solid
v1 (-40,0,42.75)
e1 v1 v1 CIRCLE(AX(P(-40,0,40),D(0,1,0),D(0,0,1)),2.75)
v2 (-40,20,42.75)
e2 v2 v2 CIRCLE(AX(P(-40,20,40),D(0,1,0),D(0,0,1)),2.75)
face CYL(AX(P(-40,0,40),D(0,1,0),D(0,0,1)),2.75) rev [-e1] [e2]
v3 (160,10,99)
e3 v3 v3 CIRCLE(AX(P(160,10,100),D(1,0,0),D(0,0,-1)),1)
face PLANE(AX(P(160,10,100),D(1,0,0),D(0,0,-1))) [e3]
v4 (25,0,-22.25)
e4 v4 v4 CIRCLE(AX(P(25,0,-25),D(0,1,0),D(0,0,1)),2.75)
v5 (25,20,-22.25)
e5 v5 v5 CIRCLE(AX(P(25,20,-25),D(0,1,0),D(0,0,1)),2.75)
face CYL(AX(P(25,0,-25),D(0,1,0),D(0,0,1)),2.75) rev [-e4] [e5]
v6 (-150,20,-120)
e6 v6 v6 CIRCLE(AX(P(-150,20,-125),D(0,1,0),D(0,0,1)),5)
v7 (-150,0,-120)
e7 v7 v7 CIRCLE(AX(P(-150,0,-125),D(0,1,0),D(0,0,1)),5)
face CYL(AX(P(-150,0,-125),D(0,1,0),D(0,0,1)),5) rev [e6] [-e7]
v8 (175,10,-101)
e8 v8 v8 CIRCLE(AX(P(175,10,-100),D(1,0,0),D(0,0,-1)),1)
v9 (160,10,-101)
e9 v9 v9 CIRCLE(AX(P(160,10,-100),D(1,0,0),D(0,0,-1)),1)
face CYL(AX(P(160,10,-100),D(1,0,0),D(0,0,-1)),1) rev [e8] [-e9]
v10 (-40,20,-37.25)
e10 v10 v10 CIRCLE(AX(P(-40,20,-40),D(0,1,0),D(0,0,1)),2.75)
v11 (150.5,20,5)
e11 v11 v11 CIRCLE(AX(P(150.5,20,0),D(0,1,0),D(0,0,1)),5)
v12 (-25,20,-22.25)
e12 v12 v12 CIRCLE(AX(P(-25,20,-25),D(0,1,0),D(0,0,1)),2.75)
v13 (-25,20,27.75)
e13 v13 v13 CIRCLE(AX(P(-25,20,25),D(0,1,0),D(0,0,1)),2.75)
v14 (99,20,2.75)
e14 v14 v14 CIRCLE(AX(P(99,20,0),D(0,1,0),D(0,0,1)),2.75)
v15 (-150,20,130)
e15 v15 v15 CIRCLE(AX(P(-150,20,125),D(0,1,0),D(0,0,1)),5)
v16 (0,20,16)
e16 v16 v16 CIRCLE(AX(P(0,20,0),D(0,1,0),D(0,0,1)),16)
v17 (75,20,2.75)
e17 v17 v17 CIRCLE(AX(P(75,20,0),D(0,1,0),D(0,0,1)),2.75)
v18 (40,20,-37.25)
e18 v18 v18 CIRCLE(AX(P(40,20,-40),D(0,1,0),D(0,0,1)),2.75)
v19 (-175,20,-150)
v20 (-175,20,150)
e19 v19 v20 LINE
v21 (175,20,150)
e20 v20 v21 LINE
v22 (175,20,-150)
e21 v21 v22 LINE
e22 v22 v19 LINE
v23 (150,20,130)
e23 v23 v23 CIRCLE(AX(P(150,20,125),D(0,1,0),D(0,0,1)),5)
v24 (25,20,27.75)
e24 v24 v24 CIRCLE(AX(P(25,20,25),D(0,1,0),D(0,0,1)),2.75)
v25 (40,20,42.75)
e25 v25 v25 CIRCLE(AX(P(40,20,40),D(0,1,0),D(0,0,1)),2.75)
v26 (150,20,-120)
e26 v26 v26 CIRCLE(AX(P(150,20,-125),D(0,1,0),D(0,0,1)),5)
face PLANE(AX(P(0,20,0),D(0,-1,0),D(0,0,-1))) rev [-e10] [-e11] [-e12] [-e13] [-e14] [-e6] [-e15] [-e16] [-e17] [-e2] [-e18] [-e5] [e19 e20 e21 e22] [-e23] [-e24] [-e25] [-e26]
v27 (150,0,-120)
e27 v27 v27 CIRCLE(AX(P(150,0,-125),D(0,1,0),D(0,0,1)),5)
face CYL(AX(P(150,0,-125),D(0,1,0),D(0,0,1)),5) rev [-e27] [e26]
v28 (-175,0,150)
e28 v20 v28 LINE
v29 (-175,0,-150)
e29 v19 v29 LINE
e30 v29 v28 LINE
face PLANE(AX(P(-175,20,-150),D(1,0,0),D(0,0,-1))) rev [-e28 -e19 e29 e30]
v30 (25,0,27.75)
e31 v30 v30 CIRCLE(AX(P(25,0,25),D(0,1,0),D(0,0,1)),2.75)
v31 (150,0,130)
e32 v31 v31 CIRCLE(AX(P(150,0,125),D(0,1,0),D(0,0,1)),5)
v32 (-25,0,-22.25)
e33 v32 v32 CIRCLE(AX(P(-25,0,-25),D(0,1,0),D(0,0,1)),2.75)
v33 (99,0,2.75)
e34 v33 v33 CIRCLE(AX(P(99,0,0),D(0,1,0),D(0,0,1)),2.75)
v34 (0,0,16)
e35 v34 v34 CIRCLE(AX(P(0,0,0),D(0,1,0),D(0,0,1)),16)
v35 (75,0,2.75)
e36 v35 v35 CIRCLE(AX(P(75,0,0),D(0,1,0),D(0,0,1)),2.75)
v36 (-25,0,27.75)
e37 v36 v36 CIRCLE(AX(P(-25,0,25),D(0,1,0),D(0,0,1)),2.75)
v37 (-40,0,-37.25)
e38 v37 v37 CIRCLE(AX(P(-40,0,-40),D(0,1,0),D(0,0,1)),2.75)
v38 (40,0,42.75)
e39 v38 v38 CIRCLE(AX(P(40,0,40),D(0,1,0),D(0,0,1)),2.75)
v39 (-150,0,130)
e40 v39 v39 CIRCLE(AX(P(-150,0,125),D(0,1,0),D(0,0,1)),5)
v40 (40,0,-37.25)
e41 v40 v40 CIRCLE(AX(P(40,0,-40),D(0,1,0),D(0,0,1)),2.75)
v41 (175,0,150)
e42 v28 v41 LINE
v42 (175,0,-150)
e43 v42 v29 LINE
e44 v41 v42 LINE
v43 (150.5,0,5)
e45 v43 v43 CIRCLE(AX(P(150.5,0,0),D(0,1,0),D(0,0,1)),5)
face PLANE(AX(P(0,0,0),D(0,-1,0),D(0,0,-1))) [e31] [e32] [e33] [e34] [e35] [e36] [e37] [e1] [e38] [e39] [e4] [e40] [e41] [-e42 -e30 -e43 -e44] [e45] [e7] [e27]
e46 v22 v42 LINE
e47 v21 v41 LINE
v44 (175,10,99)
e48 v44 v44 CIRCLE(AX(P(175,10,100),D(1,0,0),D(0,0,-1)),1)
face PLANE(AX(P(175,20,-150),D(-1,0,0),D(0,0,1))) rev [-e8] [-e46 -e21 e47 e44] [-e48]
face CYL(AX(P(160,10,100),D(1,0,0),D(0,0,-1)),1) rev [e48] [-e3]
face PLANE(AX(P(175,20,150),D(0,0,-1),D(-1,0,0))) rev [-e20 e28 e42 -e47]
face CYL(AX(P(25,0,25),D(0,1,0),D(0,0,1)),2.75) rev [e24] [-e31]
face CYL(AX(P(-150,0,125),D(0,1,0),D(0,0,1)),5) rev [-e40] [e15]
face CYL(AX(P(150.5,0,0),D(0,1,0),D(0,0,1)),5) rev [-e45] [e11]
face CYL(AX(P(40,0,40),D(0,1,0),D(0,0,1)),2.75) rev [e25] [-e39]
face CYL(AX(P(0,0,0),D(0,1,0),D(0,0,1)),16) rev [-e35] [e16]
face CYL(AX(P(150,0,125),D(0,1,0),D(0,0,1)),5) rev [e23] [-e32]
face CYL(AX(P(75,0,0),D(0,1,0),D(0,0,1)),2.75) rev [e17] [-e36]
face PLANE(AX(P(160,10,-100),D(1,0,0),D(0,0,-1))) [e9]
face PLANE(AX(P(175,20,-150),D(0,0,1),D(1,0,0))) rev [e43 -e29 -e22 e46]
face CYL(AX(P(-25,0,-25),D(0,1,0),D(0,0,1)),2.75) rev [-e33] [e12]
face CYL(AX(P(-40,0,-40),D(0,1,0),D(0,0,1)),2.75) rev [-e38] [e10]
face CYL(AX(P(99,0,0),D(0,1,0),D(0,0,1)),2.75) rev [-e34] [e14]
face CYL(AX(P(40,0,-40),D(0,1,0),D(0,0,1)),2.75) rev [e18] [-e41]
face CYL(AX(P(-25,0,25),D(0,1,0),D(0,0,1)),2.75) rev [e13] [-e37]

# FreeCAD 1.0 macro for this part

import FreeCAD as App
import Part
import Sketcher

V = App.Vector


def add_polygon(sketch, points):
    """Adds a closed chain of lines whose ends are joined by coincident constraints."""
    first, n = sketch.GeometryCount, len(points)
    for a, b in zip(points, points[1:] + points[:1]):
        sketch.addGeometry(Part.LineSegment(App.Vector(*a, 0), App.Vector(*b, 0)), False)
    for i in range(n):
        sketch.addConstraint(Sketcher.Constraint("Coincident", first + i, 2, first + (i + 1) % n, 1))

doc = App.newDocument("Part")
body = doc.addObject("PartDesign::Body", "Body")

# Sketch on XZ plane
sketch1 = body.newObject("Sketcher::SketchObject", "Sketch")
sketch1.AttachmentSupport = (doc.getObject("XZ_Plane"), [""])
sketch1.MapMode = "FlatFace"
add_polygon(sketch1, [(-175, -150), (-175, 150), (175, 150), (175, -150)])  # lines 0-3
sketch1.addConstraint(Sketcher.Constraint("Vertical", 0))
sketch1.addConstraint(Sketcher.Constraint("Horizontal", 1))
sketch1.addConstraint(Sketcher.Constraint("Vertical", 2))
sketch1.addConstraint(Sketcher.Constraint("Horizontal", 3))
sketch1.addConstraint(Sketcher.Constraint("Symmetric", 0, 2, 2, 2, -1, 1))
sketch1.addConstraint(Sketcher.Constraint("DistanceX", 1, 1, 1, 2, 350.0))
sketch1.addConstraint(Sketcher.Constraint("DistanceY", 0, 1, 0, 2, 300.0))
pad1 = body.newObject("PartDesign::Pad", "Pad")
pad1.Profile = sketch1
pad1.Length = 20
pad1.Reversed = True

# Sketch on XZ plane
sketch2 = body.newObject("Sketcher::SketchObject", "Sketch001")
sketch2.AttachmentSupport = (doc.getObject("XZ_Plane"), [""])
sketch2.MapMode = "FlatFace"
sketch2.AttachmentOffset = App.Placement(V(0, 0, -20), App.Rotation())
sketch2.addGeometry(Part.Circle(V(-150, 125, 0), V(0, 0, 1), 5), False)
sketch2.addGeometry(Part.Circle(V(-150, -125, 0), V(0, 0, 1), 5), False)
sketch2.addGeometry(Part.Circle(V(150, -125, 0), V(0, 0, 1), 5), False)
sketch2.addGeometry(Part.Circle(V(150, 125, 0), V(0, 0, 1), 5), False)
sketch2.addConstraint(Sketcher.Constraint("Equal", 0, 1))
sketch2.addConstraint(Sketcher.Constraint("Equal", 1, 2))
sketch2.addConstraint(Sketcher.Constraint("Equal", 2, 3))
sketch2.addConstraint(Sketcher.Constraint("Symmetric", 0, 3, 2, 3, -1, 1))
sketch2.addConstraint(Sketcher.Constraint("Symmetric", 1, 3, 3, 3, -1, 1))
sketch2.addConstraint(Sketcher.Constraint("Symmetric", 1, 3, 2, 3, -2))
sketch2.addConstraint(Sketcher.Constraint("Diameter", 0, 10.0))
sketch2.addConstraint(Sketcher.Constraint("DistanceX", 0, 3, -1, 1, 150.0))
sketch2.addConstraint(Sketcher.Constraint("DistanceY", -1, 1, 0, 3, 125.0))
pocket1 = body.newObject("PartDesign::Pocket", "Pocket")
pocket1.Profile = sketch2
pocket1.Type = "ThroughAll"
pocket1.Reversed = True

# Sketch on XZ plane
sketch3 = body.newObject("Sketcher::SketchObject", "Sketch002")
sketch3.AttachmentSupport = (doc.getObject("XZ_Plane"), [""])
sketch3.MapMode = "FlatFace"
sketch3.AttachmentOffset = App.Placement(V(0, 0, -20), App.Rotation())
sketch3.addGeometry(Part.Circle(V(75, 0, 0), V(0, 0, 1), 2.8), False)
sketch3.addGeometry(Part.Circle(V(99, 0, 0), V(0, 0, 1), 2.8), False)
sketch3.addConstraint(Sketcher.Constraint("Equal", 0, 1))
sketch3.addConstraint(Sketcher.Constraint("PointOnObject", 0, 3, -1))
sketch3.addConstraint(Sketcher.Constraint("PointOnObject", 1, 3, -1))
sketch3.addConstraint(Sketcher.Constraint("Diameter", 0, 5.5))
sketch3.addConstraint(Sketcher.Constraint("DistanceX", -1, 1, 0, 3, 75.0))
sketch3.addConstraint(Sketcher.Constraint("DistanceX", -1, 1, 1, 3, 99.0))
pocket2 = body.newObject("PartDesign::Pocket", "Pocket001")
pocket2.Profile = sketch3
pocket2.Length = 20
pocket2.Reversed = True

# Sketch on XZ plane
sketch4 = body.newObject("Sketcher::SketchObject", "Sketch003")
sketch4.AttachmentSupport = (doc.getObject("XZ_Plane"), [""])
sketch4.MapMode = "FlatFace"
sketch4.AttachmentOffset = App.Placement(V(0, 0, -20), App.Rotation())
sketch4.addGeometry(Part.Circle(V(150, 0, 0), V(0, 0, 1), 5), False)
sketch4.addConstraint(Sketcher.Constraint("PointOnObject", 0, 3, -1))
sketch4.addConstraint(Sketcher.Constraint("Diameter", 0, 10.0))
sketch4.addConstraint(Sketcher.Constraint("DistanceX", -1, 1, 0, 3, 150.5))
pocket3 = body.newObject("PartDesign::Pocket", "Pocket002")
pocket3.Profile = sketch4
pocket3.Length = 20
pocket3.Reversed = True

# Sketch on XZ plane
sketch5 = body.newObject("Sketcher::SketchObject", "Sketch004")
sketch5.AttachmentSupport = (doc.getObject("XZ_Plane"), [""])
sketch5.MapMode = "FlatFace"
sketch5.AttachmentOffset = App.Placement(V(0, 0, -20), App.Rotation())
sketch5.addGeometry(Part.Circle(V(-40, -40, 0), V(0, 0, 1), 2.8), False)
sketch5.addGeometry(Part.Circle(V(40, -40, 0), V(0, 0, 1), 2.8), False)
sketch5.addGeometry(Part.Circle(V(40, 40, 0), V(0, 0, 1), 2.8), False)
sketch5.addGeometry(Part.Circle(V(-40, 40, 0), V(0, 0, 1), 2.8), False)
sketch5.addConstraint(Sketcher.Constraint("Equal", 0, 1))
sketch5.addConstraint(Sketcher.Constraint("Equal", 1, 2))
sketch5.addConstraint(Sketcher.Constraint("Equal", 2, 3))
sketch5.addConstraint(Sketcher.Constraint("Symmetric", 0, 3, 2, 3, -1, 1))
sketch5.addConstraint(Sketcher.Constraint("Symmetric", 1, 3, 3, 3, -1, 1))
sketch5.addConstraint(Sketcher.Constraint("Symmetric", 0, 3, 1, 3, -2))
sketch5.addConstraint(Sketcher.Constraint("Diameter", 0, 5.5))
sketch5.addConstraint(Sketcher.Constraint("DistanceX", 0, 3, -1, 1, 40.0))
sketch5.addConstraint(Sketcher.Constraint("DistanceY", 0, 3, -1, 1, 40.0))
pocket4 = body.newObject("PartDesign::Pocket", "Pocket003")
pocket4.Profile = sketch5
pocket4.Length = 20
pocket4.Reversed = True

# Sketch on XZ plane
sketch6 = body.newObject("Sketcher::SketchObject", "Sketch005")
sketch6.AttachmentSupport = (doc.getObject("XZ_Plane"), [""])
sketch6.MapMode = "FlatFace"
sketch6.AttachmentOffset = App.Placement(V(0, 0, -20), App.Rotation())
sketch6.addGeometry(Part.Circle(V(0, 0, 0), V(0, 0, 1), 16), False)
sketch6.addConstraint(Sketcher.Constraint("Coincident", 0, 3, -1, 1))
sketch6.addConstraint(Sketcher.Constraint("Diameter", 0, 32.0))
pocket5 = body.newObject("PartDesign::Pocket", "Pocket004")
pocket5.Profile = sketch6
pocket5.Length = 20
pocket5.Reversed = True

# Sketch on XZ plane
sketch7 = body.newObject("Sketcher::SketchObject", "Sketch006")
sketch7.AttachmentSupport = (doc.getObject("XZ_Plane"), [""])
sketch7.MapMode = "FlatFace"
sketch7.AttachmentOffset = App.Placement(V(0, 0, -20), App.Rotation())
sketch7.addGeometry(Part.Circle(V(-25, -25, 0), V(0, 0, 1), 2.8), False)
sketch7.addGeometry(Part.Circle(V(25, -25, 0), V(0, 0, 1), 2.8), False)
sketch7.addGeometry(Part.Circle(V(25, 25, 0), V(0, 0, 1), 2.8), False)
sketch7.addGeometry(Part.Circle(V(-25, 25, 0), V(0, 0, 1), 2.8), False)
sketch7.addConstraint(Sketcher.Constraint("Equal", 0, 1))
sketch7.addConstraint(Sketcher.Constraint("Equal", 1, 2))
sketch7.addConstraint(Sketcher.Constraint("Equal", 2, 3))
sketch7.addConstraint(Sketcher.Constraint("Symmetric", 0, 3, 2, 3, -1, 1))
sketch7.addConstraint(Sketcher.Constraint("Symmetric", 1, 3, 3, 3, -1, 1))
sketch7.addConstraint(Sketcher.Constraint("Symmetric", 0, 3, 1, 3, -2))
sketch7.addConstraint(Sketcher.Constraint("Diameter", 0, 5.5))
sketch7.addConstraint(Sketcher.Constraint("DistanceX", 0, 3, -1, 1, 25.0))
sketch7.addConstraint(Sketcher.Constraint("DistanceY", 0, 3, -1, 1, 25.0))
pocket6 = body.newObject("PartDesign::Pocket", "Pocket005")
pocket6.Profile = sketch7
pocket6.Length = 20
pocket6.Reversed = True

# Sketch on YZ plane
sketch8 = body.newObject("Sketcher::SketchObject", "Sketch007")
sketch8.AttachmentSupport = (doc.getObject("YZ_Plane"), [""])
sketch8.MapMode = "FlatFace"
sketch8.AttachmentOffset = App.Placement(V(0, 0, 175), App.Rotation())
sketch8.addGeometry(Part.Circle(V(10, 100, 0), V(0, 0, 1), 1), False)
sketch8.addGeometry(Part.Circle(V(10, -100, 0), V(0, 0, 1), 1), False)
sketch8.addConstraint(Sketcher.Constraint("Equal", 0, 1))
sketch8.addConstraint(Sketcher.Constraint("Symmetric", 0, 3, 1, 3, -1))
sketch8.addConstraint(Sketcher.Constraint("Diameter", 0, 2.0))
sketch8.addConstraint(Sketcher.Constraint("DistanceX", -1, 1, 0, 3, 10.0))
sketch8.addConstraint(Sketcher.Constraint("DistanceY", -1, 1, 0, 3, 100.0))
pocket7 = body.newObject("PartDesign::Pocket", "Pocket006")
pocket7.Profile = sketch8
pocket7.Length = 15

doc.recompute()
